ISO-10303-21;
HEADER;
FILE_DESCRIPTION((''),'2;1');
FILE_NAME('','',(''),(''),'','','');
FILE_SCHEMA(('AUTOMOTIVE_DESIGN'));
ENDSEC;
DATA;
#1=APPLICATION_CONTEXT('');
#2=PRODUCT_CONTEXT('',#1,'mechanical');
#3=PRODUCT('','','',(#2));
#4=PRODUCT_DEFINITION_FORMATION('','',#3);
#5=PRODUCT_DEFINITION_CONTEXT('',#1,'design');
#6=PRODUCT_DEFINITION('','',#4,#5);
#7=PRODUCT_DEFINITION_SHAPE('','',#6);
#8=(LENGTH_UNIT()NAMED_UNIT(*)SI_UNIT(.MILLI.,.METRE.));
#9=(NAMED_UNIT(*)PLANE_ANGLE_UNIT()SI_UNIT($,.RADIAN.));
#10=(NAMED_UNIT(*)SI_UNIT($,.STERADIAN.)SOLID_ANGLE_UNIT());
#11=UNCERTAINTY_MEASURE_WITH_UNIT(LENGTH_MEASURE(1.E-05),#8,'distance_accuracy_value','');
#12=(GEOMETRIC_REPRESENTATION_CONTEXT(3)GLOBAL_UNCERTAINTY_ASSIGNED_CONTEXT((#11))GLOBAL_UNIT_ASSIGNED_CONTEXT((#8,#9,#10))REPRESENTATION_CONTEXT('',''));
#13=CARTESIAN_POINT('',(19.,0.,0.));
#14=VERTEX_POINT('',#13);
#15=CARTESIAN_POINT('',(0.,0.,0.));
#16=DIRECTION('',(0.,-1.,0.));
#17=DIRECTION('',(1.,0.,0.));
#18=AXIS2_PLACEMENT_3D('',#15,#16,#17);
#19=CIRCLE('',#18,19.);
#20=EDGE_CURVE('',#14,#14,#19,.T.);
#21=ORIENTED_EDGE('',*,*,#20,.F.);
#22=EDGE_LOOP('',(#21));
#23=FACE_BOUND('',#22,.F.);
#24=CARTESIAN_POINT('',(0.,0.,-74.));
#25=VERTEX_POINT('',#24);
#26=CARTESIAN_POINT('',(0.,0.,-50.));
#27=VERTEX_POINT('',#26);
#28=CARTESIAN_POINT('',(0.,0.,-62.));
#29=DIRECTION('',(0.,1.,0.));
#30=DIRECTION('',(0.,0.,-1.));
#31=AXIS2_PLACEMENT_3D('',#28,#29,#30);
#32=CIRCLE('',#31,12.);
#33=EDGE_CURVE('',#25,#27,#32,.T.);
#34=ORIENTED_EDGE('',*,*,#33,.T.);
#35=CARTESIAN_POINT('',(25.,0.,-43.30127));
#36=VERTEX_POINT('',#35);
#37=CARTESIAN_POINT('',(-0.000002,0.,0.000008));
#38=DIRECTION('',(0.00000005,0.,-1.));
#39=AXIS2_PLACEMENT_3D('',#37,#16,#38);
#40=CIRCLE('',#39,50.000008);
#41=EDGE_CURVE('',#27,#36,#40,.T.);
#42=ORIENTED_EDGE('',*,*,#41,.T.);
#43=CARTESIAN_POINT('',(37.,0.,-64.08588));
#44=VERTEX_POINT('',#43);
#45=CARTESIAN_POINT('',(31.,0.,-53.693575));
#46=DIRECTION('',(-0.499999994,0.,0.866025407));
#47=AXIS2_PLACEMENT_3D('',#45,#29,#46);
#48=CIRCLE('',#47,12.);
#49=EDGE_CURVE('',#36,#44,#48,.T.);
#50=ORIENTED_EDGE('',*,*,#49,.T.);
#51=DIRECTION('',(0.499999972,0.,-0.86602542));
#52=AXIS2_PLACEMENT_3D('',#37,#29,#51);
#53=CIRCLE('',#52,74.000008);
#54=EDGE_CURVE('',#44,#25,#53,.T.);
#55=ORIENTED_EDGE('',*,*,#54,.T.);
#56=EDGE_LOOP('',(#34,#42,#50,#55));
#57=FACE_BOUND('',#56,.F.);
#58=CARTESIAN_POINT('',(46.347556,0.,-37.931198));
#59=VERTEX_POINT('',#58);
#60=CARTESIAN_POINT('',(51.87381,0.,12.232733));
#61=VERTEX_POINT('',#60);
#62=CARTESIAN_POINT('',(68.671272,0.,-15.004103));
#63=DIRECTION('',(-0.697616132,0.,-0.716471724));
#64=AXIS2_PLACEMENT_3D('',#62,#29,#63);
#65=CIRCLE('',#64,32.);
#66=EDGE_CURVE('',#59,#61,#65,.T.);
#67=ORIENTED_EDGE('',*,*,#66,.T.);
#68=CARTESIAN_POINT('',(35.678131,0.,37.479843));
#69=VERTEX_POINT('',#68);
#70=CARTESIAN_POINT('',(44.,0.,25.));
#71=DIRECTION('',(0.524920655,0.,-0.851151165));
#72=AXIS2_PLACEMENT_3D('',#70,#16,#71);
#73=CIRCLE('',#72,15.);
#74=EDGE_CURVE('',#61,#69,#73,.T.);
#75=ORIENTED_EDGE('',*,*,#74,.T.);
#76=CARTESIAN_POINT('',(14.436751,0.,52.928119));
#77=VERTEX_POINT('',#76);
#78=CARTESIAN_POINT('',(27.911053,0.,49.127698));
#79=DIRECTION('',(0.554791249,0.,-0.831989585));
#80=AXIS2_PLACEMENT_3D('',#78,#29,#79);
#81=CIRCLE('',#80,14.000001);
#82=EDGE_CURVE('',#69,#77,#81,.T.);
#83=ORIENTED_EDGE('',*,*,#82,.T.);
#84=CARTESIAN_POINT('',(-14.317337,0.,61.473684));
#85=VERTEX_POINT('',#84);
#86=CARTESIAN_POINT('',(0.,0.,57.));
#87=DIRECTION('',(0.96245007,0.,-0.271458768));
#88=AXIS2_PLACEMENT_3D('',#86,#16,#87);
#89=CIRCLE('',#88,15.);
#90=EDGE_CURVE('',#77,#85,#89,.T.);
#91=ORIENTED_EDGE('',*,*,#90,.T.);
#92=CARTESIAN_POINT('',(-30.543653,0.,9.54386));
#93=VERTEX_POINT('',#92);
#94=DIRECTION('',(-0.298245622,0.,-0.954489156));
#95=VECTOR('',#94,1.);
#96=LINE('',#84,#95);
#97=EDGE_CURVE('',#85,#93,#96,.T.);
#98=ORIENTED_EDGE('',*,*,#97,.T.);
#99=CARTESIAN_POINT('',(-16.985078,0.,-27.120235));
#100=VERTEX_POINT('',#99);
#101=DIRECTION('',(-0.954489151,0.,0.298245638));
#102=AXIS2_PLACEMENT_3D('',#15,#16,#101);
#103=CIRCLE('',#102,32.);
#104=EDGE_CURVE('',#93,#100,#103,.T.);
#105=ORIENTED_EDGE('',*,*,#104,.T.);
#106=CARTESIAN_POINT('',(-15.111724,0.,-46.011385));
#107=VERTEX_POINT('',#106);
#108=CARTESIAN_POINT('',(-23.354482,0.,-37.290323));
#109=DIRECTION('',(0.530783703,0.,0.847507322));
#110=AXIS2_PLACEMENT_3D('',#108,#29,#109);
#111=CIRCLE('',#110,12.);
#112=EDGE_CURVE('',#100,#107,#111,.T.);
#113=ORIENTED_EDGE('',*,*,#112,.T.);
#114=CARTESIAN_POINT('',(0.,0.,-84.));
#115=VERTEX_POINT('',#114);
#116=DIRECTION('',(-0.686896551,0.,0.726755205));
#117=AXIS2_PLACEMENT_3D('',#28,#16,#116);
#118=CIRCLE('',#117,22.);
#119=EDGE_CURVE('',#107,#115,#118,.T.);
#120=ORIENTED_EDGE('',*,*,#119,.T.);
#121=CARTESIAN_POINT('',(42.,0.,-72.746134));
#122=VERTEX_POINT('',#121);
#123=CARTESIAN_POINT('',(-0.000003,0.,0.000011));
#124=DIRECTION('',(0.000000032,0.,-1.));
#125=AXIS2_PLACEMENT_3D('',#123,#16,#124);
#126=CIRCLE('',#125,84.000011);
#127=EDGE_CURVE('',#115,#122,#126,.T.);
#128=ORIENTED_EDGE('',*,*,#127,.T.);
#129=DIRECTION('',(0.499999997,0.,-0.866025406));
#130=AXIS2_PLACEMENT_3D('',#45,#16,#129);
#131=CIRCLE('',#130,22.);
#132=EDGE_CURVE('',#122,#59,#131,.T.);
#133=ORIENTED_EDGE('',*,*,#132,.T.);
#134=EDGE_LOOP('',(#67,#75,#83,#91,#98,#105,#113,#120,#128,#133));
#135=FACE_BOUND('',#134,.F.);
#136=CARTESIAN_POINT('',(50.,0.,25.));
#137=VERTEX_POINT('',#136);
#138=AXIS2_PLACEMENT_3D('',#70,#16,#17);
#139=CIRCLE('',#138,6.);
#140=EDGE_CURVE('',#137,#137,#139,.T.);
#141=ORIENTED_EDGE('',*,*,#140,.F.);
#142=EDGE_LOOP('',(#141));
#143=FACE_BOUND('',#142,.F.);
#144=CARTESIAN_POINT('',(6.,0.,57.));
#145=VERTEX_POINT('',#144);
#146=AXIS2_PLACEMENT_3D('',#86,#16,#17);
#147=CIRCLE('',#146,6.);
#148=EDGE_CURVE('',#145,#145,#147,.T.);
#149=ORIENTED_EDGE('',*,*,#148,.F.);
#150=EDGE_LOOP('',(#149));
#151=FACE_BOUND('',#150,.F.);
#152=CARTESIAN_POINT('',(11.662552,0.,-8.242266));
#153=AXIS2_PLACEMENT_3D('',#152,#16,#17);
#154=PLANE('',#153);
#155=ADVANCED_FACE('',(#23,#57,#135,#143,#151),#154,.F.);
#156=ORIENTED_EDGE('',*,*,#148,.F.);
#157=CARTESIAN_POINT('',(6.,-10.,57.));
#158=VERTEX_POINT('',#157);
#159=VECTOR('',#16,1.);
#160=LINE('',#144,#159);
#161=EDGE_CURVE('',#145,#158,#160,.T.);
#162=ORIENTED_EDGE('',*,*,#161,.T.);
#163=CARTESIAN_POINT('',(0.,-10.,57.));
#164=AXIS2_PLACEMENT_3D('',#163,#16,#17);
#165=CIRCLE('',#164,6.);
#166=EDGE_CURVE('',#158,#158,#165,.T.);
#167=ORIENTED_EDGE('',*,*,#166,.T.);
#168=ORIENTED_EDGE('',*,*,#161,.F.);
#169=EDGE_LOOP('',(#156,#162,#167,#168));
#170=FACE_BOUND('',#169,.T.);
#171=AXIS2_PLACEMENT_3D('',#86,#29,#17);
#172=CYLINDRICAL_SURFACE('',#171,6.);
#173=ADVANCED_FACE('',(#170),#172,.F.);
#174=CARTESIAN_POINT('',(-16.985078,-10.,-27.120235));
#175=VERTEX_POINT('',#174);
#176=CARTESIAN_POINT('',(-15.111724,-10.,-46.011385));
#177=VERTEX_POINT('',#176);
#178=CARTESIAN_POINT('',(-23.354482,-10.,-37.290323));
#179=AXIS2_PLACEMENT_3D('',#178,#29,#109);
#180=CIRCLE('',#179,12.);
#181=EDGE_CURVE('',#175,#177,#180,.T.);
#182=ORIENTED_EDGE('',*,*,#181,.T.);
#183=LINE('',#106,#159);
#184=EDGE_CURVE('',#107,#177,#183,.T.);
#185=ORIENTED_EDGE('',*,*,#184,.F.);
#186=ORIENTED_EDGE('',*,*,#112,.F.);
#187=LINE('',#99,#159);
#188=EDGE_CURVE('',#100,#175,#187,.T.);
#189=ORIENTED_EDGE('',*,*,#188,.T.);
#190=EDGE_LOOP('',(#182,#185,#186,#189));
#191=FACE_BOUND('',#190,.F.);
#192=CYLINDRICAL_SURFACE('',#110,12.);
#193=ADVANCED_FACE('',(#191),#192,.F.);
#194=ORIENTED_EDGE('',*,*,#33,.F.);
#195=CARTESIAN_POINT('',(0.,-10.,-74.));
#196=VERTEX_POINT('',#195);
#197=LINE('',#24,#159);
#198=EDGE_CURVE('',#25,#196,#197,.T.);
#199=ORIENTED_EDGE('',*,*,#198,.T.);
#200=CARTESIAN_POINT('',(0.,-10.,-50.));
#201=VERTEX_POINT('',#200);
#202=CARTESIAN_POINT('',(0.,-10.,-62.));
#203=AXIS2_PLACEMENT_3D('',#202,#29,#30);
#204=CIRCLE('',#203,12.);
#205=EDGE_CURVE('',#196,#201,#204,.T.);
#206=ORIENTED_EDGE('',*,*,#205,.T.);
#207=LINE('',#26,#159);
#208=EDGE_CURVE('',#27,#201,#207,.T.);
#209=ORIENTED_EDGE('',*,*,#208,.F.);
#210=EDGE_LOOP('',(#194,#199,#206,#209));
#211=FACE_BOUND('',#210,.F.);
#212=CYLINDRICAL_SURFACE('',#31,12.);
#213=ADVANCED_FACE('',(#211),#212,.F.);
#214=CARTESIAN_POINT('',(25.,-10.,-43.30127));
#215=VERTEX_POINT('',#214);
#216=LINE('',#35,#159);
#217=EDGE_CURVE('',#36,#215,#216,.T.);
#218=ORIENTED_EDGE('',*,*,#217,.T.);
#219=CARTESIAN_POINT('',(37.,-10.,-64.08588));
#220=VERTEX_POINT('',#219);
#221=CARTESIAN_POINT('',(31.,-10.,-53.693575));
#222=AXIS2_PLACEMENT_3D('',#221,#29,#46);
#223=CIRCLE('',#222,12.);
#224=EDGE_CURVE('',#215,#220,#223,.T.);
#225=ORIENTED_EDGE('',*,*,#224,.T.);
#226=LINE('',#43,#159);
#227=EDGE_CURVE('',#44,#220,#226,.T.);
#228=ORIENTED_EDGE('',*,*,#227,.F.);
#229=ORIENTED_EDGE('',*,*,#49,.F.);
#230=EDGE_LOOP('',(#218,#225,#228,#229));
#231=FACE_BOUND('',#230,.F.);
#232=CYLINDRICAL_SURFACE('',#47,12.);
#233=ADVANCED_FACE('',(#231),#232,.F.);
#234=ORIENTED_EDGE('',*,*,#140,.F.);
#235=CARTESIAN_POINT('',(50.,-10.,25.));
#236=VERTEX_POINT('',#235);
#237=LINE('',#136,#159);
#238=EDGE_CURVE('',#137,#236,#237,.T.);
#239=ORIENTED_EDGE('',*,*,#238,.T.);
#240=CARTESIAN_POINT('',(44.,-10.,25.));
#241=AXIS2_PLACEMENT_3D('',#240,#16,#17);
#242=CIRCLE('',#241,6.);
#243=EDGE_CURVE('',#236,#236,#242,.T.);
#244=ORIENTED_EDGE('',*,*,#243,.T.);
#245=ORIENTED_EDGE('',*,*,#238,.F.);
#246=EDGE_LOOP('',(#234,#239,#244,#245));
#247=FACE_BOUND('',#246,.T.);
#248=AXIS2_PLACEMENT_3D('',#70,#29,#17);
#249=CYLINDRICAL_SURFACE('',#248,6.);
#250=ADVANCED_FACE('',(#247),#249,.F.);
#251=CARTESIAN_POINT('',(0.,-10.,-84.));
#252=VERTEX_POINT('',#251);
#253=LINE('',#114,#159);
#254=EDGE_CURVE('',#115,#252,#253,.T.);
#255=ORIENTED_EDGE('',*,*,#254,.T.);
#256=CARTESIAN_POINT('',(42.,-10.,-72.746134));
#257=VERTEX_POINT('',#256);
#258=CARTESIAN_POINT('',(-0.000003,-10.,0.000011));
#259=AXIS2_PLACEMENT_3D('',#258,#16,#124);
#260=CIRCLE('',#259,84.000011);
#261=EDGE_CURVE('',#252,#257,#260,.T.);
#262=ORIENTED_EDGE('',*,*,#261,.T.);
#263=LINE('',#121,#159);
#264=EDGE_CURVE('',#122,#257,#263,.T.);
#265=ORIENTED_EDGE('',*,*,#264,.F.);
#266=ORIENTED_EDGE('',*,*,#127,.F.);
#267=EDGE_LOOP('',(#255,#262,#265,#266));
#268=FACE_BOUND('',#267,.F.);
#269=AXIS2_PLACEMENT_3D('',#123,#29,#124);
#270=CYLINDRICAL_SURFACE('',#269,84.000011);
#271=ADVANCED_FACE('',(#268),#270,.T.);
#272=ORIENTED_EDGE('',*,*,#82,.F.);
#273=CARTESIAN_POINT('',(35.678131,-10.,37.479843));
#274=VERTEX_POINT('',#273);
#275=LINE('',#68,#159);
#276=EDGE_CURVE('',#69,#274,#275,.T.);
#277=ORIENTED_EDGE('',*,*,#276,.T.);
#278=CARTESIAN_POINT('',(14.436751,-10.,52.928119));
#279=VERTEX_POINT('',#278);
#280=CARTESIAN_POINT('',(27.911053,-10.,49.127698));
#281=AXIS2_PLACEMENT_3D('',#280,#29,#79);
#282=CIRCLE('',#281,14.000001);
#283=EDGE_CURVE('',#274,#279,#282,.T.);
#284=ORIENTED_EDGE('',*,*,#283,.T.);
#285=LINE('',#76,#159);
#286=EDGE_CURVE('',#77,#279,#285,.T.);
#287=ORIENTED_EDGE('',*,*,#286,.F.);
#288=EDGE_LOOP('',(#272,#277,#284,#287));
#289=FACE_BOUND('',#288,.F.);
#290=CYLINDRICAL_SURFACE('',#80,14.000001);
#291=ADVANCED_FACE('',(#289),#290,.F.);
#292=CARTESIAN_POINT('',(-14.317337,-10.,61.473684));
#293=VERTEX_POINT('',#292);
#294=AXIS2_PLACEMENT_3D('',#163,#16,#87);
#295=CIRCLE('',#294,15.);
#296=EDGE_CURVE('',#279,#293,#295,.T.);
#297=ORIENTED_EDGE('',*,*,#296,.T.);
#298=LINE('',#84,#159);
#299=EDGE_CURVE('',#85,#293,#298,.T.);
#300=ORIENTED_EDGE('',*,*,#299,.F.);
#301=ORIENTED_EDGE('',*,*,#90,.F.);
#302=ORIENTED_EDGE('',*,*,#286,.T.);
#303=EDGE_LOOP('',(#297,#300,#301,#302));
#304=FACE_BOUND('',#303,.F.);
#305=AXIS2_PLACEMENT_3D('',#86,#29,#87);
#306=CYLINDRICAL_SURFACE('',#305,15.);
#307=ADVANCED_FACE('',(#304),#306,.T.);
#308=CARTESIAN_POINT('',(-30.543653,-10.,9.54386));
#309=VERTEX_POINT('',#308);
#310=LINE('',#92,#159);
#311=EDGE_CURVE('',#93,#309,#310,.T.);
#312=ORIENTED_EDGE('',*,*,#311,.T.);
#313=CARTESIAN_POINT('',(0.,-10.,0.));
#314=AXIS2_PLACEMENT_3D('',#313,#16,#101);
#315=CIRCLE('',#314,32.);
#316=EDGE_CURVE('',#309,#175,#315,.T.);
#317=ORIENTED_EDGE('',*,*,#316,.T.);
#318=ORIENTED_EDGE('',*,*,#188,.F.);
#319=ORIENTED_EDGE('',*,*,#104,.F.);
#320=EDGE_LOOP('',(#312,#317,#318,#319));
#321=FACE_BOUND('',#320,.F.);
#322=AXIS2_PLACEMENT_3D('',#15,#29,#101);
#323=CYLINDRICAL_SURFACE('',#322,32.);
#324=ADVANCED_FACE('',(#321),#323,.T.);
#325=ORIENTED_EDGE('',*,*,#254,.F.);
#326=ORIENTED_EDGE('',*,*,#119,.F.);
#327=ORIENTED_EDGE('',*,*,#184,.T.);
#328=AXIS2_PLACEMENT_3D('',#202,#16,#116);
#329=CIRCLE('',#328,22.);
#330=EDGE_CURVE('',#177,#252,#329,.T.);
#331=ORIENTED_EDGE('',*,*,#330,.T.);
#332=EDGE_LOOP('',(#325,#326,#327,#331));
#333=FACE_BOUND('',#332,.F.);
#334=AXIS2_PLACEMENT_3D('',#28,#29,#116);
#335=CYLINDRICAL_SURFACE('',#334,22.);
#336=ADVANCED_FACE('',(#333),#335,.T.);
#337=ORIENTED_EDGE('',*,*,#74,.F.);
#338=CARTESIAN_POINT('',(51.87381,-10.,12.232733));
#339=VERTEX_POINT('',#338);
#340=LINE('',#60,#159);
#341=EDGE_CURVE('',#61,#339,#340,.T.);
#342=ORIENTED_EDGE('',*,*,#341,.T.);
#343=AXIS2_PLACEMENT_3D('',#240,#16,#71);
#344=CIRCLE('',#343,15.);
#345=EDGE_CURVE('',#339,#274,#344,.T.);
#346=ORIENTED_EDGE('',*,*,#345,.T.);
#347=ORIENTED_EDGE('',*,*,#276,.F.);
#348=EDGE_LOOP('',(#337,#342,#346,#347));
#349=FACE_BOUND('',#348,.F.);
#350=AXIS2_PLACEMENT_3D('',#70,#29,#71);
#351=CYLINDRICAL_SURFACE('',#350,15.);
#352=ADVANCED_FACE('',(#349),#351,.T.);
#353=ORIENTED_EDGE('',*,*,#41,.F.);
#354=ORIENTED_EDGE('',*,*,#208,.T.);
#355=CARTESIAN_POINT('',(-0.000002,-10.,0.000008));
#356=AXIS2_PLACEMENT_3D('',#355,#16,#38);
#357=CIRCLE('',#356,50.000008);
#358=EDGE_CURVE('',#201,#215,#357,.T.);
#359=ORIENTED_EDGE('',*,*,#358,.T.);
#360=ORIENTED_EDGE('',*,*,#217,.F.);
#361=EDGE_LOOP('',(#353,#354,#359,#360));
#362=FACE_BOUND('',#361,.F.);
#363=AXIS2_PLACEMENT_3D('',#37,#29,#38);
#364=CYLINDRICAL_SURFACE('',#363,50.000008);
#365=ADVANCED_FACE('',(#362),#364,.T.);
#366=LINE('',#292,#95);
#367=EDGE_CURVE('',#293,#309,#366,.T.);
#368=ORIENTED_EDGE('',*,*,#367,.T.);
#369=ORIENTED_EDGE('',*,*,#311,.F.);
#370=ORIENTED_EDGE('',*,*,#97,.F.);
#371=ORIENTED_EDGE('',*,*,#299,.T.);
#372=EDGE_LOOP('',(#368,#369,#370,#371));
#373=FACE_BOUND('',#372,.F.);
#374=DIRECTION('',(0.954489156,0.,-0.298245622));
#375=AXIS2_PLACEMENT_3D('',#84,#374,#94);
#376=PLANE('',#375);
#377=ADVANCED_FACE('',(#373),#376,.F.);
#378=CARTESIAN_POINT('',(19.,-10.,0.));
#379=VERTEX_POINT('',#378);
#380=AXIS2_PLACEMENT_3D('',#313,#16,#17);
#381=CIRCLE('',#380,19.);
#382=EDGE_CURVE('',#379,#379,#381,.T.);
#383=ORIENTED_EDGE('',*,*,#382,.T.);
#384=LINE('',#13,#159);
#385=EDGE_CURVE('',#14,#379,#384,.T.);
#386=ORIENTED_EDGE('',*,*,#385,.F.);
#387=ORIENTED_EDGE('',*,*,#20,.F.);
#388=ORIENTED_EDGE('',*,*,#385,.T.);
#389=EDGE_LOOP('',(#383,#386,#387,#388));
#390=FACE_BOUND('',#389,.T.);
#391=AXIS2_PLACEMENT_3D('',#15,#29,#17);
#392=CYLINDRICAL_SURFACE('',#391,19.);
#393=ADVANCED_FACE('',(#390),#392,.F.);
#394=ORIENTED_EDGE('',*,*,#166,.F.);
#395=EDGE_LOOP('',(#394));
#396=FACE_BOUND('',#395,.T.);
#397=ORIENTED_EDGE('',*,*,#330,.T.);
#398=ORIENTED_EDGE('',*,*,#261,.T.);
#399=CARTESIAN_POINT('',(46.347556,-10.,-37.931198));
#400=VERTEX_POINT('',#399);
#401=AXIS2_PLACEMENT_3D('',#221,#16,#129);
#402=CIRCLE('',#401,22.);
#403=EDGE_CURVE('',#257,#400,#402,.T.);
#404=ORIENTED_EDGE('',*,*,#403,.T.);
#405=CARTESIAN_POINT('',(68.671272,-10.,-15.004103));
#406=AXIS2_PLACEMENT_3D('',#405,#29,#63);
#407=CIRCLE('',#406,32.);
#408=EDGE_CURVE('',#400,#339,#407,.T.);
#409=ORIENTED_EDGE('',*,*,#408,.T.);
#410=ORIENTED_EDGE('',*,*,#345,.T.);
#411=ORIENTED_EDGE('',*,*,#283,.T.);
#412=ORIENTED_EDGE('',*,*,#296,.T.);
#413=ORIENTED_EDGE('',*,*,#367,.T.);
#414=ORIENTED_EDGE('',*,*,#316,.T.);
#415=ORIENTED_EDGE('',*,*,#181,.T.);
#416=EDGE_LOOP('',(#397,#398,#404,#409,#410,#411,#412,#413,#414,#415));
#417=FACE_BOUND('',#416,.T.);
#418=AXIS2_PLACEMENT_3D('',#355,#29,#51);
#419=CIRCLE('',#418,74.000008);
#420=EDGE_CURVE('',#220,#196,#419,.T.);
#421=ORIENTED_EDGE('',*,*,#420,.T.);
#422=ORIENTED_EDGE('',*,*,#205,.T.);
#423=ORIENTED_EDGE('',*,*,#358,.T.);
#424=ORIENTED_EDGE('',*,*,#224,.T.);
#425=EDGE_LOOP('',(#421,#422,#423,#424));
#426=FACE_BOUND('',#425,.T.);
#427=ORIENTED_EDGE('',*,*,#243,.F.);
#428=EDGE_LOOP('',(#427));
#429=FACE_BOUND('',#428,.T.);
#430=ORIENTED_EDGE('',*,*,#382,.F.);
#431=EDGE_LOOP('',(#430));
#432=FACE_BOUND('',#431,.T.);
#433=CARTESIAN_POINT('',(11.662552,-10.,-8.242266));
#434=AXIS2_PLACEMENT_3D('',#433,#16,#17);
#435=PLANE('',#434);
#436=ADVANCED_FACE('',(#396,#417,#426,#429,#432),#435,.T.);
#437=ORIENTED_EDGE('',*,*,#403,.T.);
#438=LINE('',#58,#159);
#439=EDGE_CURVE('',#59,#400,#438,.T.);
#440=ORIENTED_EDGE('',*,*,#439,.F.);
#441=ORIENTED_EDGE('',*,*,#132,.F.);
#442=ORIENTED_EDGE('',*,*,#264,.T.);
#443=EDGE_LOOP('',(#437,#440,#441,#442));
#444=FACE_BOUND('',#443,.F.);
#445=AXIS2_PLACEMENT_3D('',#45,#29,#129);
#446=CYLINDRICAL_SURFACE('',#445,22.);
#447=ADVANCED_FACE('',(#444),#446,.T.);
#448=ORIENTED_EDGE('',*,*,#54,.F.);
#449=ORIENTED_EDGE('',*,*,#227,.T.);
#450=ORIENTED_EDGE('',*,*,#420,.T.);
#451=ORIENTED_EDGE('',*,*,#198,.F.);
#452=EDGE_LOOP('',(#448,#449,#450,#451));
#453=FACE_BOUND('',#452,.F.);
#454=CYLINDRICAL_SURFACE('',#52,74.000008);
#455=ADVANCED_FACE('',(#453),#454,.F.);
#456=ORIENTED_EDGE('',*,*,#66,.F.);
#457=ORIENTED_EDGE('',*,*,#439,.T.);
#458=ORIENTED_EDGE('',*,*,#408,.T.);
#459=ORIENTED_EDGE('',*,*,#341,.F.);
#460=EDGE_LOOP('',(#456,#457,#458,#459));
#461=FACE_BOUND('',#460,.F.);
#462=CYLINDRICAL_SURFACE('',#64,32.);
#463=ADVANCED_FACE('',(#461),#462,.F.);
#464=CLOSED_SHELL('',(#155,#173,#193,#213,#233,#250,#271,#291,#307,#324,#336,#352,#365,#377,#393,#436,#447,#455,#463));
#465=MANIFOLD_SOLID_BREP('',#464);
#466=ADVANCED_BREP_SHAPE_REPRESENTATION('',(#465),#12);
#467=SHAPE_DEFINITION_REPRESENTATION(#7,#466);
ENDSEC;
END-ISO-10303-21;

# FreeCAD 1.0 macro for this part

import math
import FreeCAD as App
import Part
import Sketcher

V = App.Vector
Q = App.Units.Quantity

doc = App.newDocument("Part")
body = doc.addObject("PartDesign::Body", "Body")

# Sketch on XZ plane
sketch1 = body.newObject("Sketcher::SketchObject", "Sketch")
sketch1.AttachmentSupport = (doc.getObject("XZ_Plane"), [""])
sketch1.MapMode = "FlatFace"
sketch1.addGeometry([
    Part.ArcOfCircle(Part.Circle(V(28, 49, 0), V(0, 0, 1), 14), math.radians(164), math.radians(304)),  # 0
    Part.ArcOfCircle(Part.Circle(V(0, 57, 0), V(0, 0, 1), 15), math.radians(-16), math.radians(163)),  # 1
    Part.LineSegment(V(-14, 61, 0), V(-31, 10, 0)),  # 2
    Part.ArcOfCircle(Part.Circle(V(0, 0, 0), V(0, 0, 1), 32), math.radians(163), math.radians(238)),  # 3
    Part.ArcOfCircle(Part.Circle(V(-23, -37, 0), V(0, 0, 1), 12), math.radians(-47), math.radians(58)),  # 4
    Part.ArcOfCircle(Part.Circle(V(0, -62, 0), V(0, 0, 1), 22), math.radians(133), math.radians(270)),  # 5
    Part.ArcOfCircle(Part.Circle(V(0, 0, 0), V(0, 0, 1), 84), math.radians(-90), math.radians(-60)),  # 6
    Part.ArcOfCircle(Part.Circle(V(31, -54, 0), V(0, 0, 1), 22), math.radians(-60), math.radians(46)),  # 7
    Part.ArcOfCircle(Part.Circle(V(69, -15, 0), V(0, 0, 1), 32), math.radians(122), math.radians(226)),  # 8
    Part.ArcOfCircle(Part.Circle(V(44, 25, 0), V(0, 0, 1), 15), math.radians(-58), math.radians(124)),  # 9
    Part.ArcOfCircle(Part.Circle(V(0, 0, 0), V(0, 0, 1), 74), math.radians(-90), math.radians(-60)),  # 10
    Part.ArcOfCircle(Part.Circle(V(0, -62, 0), V(0, 0, 1), 12), math.radians(90), math.radians(270)),  # 11
    Part.ArcOfCircle(Part.Circle(V(0, 0, 0), V(0, 0, 1), 50), math.radians(-90), math.radians(-60)),  # 12
    Part.ArcOfCircle(Part.Circle(V(31, -54, 0), V(0, 0, 1), 12), math.radians(-60), math.radians(120)),  # 13
    Part.Circle(V(0, 0, 0), V(0, 0, 1), 19),  # 14
    Part.Circle(V(0, 57, 0), V(0, 0, 1), 6),  # 15
    Part.Circle(V(44, 25, 0), V(0, 0, 1), 6),  # 16
], False)
sketch1.addConstraint([
    Sketcher.Constraint("Tangent", 0, 1, 1, 1),
    Sketcher.Constraint("Tangent", 1, 2, 2, 1),
    Sketcher.Constraint("Tangent", 2, 2, 3, 1),
    Sketcher.Constraint("Tangent", 3, 2, 4, 2),
    Sketcher.Constraint("Tangent", 4, 1, 5, 1),
    Sketcher.Constraint("Tangent", 5, 2, 6, 1),
    Sketcher.Constraint("Tangent", 6, 2, 7, 1),
    Sketcher.Constraint("Tangent", 7, 2, 8, 2),
    Sketcher.Constraint("Tangent", 8, 1, 9, 1),
    Sketcher.Constraint("Tangent", 9, 2, 0, 2),
    Sketcher.Constraint("Tangent", 10, 1, 11, 2),
    Sketcher.Constraint("Tangent", 11, 1, 12, 1),
    Sketcher.Constraint("Tangent", 12, 2, 13, 2),
    Sketcher.Constraint("Tangent", 13, 1, 10, 2),
    Sketcher.Constraint("Coincident", 3, 3, -1, 1),
    Sketcher.Constraint("Coincident", 10, 3, -1, 1),
    Sketcher.Constraint("Coincident", 12, 3, -1, 1),
    Sketcher.Constraint("Coincident", 14, 3, -1, 1),
    Sketcher.Constraint("Coincident", 11, 3, 5, 3),
    Sketcher.Constraint("Coincident", 13, 3, 7, 3),
    Sketcher.Constraint("Coincident", 15, 3, 1, 3),
    Sketcher.Constraint("Coincident", 16, 3, 9, 3),
    Sketcher.Constraint("Equal", 5, 7),
    Sketcher.Constraint("Equal", 3, 8),
    Sketcher.Constraint("Equal", 1, 9),
    Sketcher.Constraint("Equal", 4, 11),
    Sketcher.Constraint("Equal", 15, 16),
    Sketcher.Constraint("PointOnObject", 1, 3, -2),
    Sketcher.Constraint("PointOnObject", 5, 3, -2),
    Sketcher.Constraint("PointOnObject", 5, 2, -2),
    Sketcher.Constraint("Diameter", 14, Q("38 mm")),
    Sketcher.Constraint("Diameter", 15, Q("12 mm")),
    Sketcher.Constraint("Radius", 0, Q("14.000001 mm")),
    Sketcher.Constraint("Radius", 1, Q("15 mm")),
    Sketcher.Constraint("Radius", 3, Q("32 mm")),
    Sketcher.Constraint("Radius", 4, Q("12 mm")),
    Sketcher.Constraint("Radius", 5, Q("22 mm")),
    Sketcher.Constraint("DistanceY", -1, 1, 1, 3, Q("57 mm")),
    Sketcher.Constraint("DistanceY", 5, 3, -1, 1, Q("62 mm")),
    Sketcher.Constraint("DistanceX", -1, 1, 7, 3, Q("31 mm")),
    Sketcher.Constraint("DistanceX", -1, 1, 9, 3, Q("44 mm")),
    Sketcher.Constraint("DistanceY", -1, 1, 9, 3, Q("25 mm")),
])
pad1 = body.newObject("PartDesign::Pad", "Pad")
pad1.Profile = sketch1
pad1.Length = 10

doc.recompute()
